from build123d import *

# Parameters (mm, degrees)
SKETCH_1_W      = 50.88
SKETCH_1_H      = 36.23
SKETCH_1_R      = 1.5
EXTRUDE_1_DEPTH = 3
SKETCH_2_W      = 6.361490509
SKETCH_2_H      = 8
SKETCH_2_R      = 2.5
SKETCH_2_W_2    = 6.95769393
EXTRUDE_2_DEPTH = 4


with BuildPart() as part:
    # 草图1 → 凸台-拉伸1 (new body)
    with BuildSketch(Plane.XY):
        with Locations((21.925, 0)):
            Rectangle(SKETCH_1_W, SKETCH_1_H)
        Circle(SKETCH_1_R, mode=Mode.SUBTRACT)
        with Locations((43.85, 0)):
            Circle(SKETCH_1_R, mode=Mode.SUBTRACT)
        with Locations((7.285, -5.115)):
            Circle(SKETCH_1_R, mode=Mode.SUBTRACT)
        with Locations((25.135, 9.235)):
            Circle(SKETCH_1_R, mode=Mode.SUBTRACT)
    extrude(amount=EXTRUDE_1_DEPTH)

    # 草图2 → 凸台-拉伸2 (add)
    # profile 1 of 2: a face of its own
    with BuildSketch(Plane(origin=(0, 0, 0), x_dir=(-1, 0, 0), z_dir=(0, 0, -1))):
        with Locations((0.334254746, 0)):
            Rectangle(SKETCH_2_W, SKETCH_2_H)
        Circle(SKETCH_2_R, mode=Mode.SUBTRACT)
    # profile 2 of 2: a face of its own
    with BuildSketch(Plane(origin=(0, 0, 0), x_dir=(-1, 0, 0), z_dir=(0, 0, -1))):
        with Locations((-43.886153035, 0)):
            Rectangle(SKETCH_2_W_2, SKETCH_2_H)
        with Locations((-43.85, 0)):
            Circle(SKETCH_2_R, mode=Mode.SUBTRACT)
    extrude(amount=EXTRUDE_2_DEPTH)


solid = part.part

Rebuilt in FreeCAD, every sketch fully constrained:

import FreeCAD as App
import Part
import Sketcher
Q = App.Units.Quantity


def add_polygon(sketch, points):
    """Adds a closed chain of lines whose ends are joined by coincident constraints."""
    first, n = sketch.GeometryCount, len(points)
    for a, b in zip(points, points[1:] + points[:1]):
        sketch.addGeometry(Part.LineSegment(App.Vector(*a, 0), App.Vector(*b, 0)), False)
    for i in range(n):
        sketch.addConstraint(Sketcher.Constraint("Coincident", first + i, 2, first + (i + 1) % n, 1))

doc = App.newDocument("Part")
params = doc.addObject("Spreadsheet::Sheet", "Params")
for row, (alias, value) in enumerate([
    ("sketch1_diameter", "3 mm"),
    ("sketch1_width", "50.88 mm"),
    ("sketch1_height", "36.23 mm"),
    ("pad1_length", "3 mm"),
    ("sketch2_diameter", "5 mm"),
    ("sketch2_height", "8 mm"),
    ("pad2_length", "4 mm"),
], start=1):
    params.set(f"A{row}", alias)
    params.set(f"B{row}", "=" + value)
    params.setAlias(f"B{row}", alias)

body = doc.addObject("PartDesign::Body", "Body")

sketch1 = body.newObject("Sketcher::SketchObject", "Sketch")
sketch1.AttachmentSupport = (doc.getObject("XY_Plane"), [""])
sketch1.MapMode = "FlatFace"
add_polygon(sketch1, [(-3.515, 18.115), (-3.515, -18.115), (47.365, -18.115), (47.365, 18.115)])
sketch1.addGeometry(Part.Circle(App.Vector(7.285, -5.115, 0), App.Vector(0, 0, 1), 1.5), False)
sketch1.addGeometry(Part.Circle(App.Vector(0, 0, 0), App.Vector(0, 0, 1), 1.5), False)
sketch1.addGeometry(Part.Circle(App.Vector(43.85, 0, 0), App.Vector(0, 0, 1), 1.5), False)
sketch1.addGeometry(Part.Circle(App.Vector(25.135, 9.235, 0), App.Vector(0, 0, 1), 1.5), False)
sketch1.addConstraint(Sketcher.Constraint("Vertical", 0))
sketch1.addConstraint(Sketcher.Constraint("Horizontal", 1))
sketch1.addConstraint(Sketcher.Constraint("Vertical", 2))
sketch1.addConstraint(Sketcher.Constraint("Horizontal", 3))
sketch1.addConstraint(Sketcher.Constraint("Coincident", 5, 3, -1, 1))
sketch1.addConstraint(Sketcher.Constraint("Equal", 4, 5))
sketch1.addConstraint(Sketcher.Constraint("Equal", 5, 6))
sketch1.addConstraint(Sketcher.Constraint("Equal", 6, 7))
sketch1.addConstraint(Sketcher.Constraint("PointOnObject", 6, 3, -1))
sketch1.addConstraint(Sketcher.Constraint("Diameter", 4, Q("3 mm")))
sketch1.addConstraint(Sketcher.Constraint("DistanceY", 0, 2, 4, 3, Q("13 mm")))
sketch1.addConstraint(Sketcher.Constraint("DistanceX", 1, 1, 1, 2, Q("50.88 mm")))
sketch1.addConstraint(Sketcher.Constraint("DistanceY", 0, 2, 0, 1, Q("36.23 mm")))
sketch1.addConstraint(Sketcher.Constraint("DistanceX", 0, 2, 4, 3, Q("10.8 mm")))
sketch1.addConstraint(Sketcher.Constraint("DistanceX", -1, 1, 6, 3, Q("43.85 mm")))
sketch1.addConstraint(Sketcher.Constraint("DistanceX", 4, 3, 7, 3, Q("17.85 mm")))
sketch1.addConstraint(Sketcher.Constraint("DistanceY", 4, 3, 7, 3, Q("14.35 mm")))
sketch1.addConstraint(Sketcher.Constraint("DistanceX", -1, 1, 4, 3, Q("7.285 mm")))
sketch1.addConstraint(Sketcher.Constraint("DistanceY", 4, 3, -1, 1, Q("5.115 mm")))
sketch1.setExpression("Constraints[13]", "Params.sketch1_diameter")
sketch1.setExpression("Constraints[15]", "Params.sketch1_width")
sketch1.setExpression("Constraints[16]", "Params.sketch1_height")
pad1 = body.newObject("PartDesign::Pad", "Pad")
pad1.Profile = sketch1
pad1.setExpression("Length", "Params.pad1_length")

sketch2 = body.newObject("Sketcher::SketchObject", "Sketch001")
sketch2.AttachmentSupport = (doc.getObject("XY_Plane"), [""])
sketch2.MapMode = "FlatFace"
add_polygon(sketch2, [(2.846491, 4), (2.846491, -4), (-3.515, -4), (-3.515, 4)])
sketch2.addGeometry(Part.Circle(App.Vector(0, 0, 0), App.Vector(0, 0, 1), 2.5), False)
add_polygon(sketch2, [(47.365, 4), (47.365, -4), (40.407306, -4), (40.407306, 4)])
sketch2.addGeometry(Part.Circle(App.Vector(43.85, 0, 0), App.Vector(0, 0, 1), 2.5), False)
sketch2.addConstraint(Sketcher.Constraint("Vertical", 0))
sketch2.addConstraint(Sketcher.Constraint("Horizontal", 1))
sketch2.addConstraint(Sketcher.Constraint("Vertical", 2))
sketch2.addConstraint(Sketcher.Constraint("Horizontal", 3))
sketch2.addConstraint(Sketcher.Constraint("Vertical", 5))
sketch2.addConstraint(Sketcher.Constraint("Horizontal", 6))
sketch2.addConstraint(Sketcher.Constraint("Vertical", 7))
sketch2.addConstraint(Sketcher.Constraint("Horizontal", 8))
sketch2.addConstraint(Sketcher.Constraint("Coincident", 4, 3, -1, 1))
sketch2.addConstraint(Sketcher.Constraint("Equal", 4, 9))
sketch2.addConstraint(Sketcher.Constraint("PointOnObject", 9, 3, -1))
sketch2.addConstraint(Sketcher.Constraint("Horizontal", 1, 2, 5, 2))
sketch2.addConstraint(Sketcher.Constraint("Horizontal", 3, 2, 7, 2))
sketch2.addConstraint(Sketcher.Constraint("Diameter", 4, Q("5 mm")))
sketch2.addConstraint(Sketcher.Constraint("DistanceY", 0, 2, 0, 1, Q("8 mm")))
sketch2.addConstraint(Sketcher.Constraint("DistanceY", 0, 2, -1, 1, Q("4 mm")))
sketch2.addConstraint(Sketcher.Constraint("DistanceX", -1, 1, 9, 3, Q("43.85 mm")))
sketch2.addConstraint(Sketcher.Constraint("DistanceX", 1, 2, 5, 2, Q("50.88 mm")))
sketch2.addConstraint(Sketcher.Constraint("DistanceX", 1, 2, -1, 1, Q("3.515 mm")))
sketch2.addConstraint(Sketcher.Constraint("DistanceX", 1, 2, 1, 1, Q("6.361491 mm")))
sketch2.addConstraint(Sketcher.Constraint("DistanceX", 6, 2, 6, 1, Q("6.957694 mm")))
sketch2.setExpression("Constraints[21]", "Params.sketch2_diameter")
sketch2.setExpression("Constraints[22]", "Params.sketch2_height")
pad2 = body.newObject("PartDesign::Pad", "Pad001")
pad2.Profile = sketch2
pad2.setExpression("Length", "Params.pad2_length")
pad2.Reversed = True

doc.recompute()
